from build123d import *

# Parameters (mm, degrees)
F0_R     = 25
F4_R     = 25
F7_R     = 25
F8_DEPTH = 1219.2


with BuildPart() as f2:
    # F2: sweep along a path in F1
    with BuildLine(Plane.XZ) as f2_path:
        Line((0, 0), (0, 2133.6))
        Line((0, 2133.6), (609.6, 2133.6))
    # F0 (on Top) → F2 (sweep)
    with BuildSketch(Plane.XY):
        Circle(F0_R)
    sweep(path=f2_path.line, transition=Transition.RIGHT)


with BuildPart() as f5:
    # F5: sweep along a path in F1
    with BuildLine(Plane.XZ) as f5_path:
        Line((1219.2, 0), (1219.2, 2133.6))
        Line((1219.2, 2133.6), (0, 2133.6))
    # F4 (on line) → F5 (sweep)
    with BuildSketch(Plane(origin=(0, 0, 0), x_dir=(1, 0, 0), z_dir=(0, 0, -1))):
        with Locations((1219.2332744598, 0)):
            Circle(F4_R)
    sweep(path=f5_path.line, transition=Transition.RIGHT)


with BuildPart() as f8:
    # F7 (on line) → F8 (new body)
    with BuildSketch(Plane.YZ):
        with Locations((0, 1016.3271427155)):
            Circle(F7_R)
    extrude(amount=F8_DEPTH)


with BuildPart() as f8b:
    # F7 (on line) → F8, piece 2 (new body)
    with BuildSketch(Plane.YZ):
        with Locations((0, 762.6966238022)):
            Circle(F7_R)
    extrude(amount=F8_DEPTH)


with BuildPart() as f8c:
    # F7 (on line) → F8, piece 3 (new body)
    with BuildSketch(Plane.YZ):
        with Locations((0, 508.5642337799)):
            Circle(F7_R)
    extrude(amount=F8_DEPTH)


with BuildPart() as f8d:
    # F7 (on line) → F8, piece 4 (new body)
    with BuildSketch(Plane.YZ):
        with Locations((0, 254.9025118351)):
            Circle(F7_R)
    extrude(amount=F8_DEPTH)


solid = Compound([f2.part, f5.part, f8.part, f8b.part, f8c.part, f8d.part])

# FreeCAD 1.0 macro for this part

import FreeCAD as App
import Part
import Sketcher
Q = App.Units.Quantity

doc = App.newDocument("Part")
params = doc.addObject("Spreadsheet::Sheet", "Params")
for row, (alias, value) in enumerate([
    ("sketch2_width", "24 in"),
    ("sketch2_height", "84 in"),
    ("sketch4_width", "48 in"),
    ("sketch4_height", "84 in"),
    ("pad1_length", "48 in"),
    ("pad2_length", "48 in"),
    ("pad3_length", "48 in"),
    ("pad4_length", "48 in"),
], start=1):
    params.set(f"A{row}", alias)
    params.set(f"B{row}", "=" + value)
    params.setAlias(f"B{row}", alias)

body = doc.addObject("PartDesign::Body", "Body")

# Sketch on XY plane
sketch1 = body.newObject("Sketcher::SketchObject", "Sketch")
sketch1.AttachmentSupport = (doc.getObject("XY_Plane"), [""])
sketch1.MapMode = "FlatFace"
sketch1.addGeometry(Part.Circle(App.Vector(0, 0, 0), App.Vector(0, 0, 1), 25), False)
sketch1.addConstraint(Sketcher.Constraint("Coincident", 0, 3, -1, 1))
sketch1.addConstraint(Sketcher.Constraint("Diameter", 0, Q("50 mm")))

# Sketch on XZ plane
sketch2 = body.newObject("Sketcher::SketchObject", "Sketch001")
sketch2.AttachmentSupport = (doc.getObject("XZ_Plane"), [""])
sketch2.MapMode = "FlatFace"
sketch2.addGeometry(Part.LineSegment(App.Vector(0, 0, 0), App.Vector(0, 2134, 0)), False)
sketch2.addGeometry(Part.LineSegment(App.Vector(0, 2134, 0), App.Vector(610, 2134, 0)), False)
sketch2.addConstraint(Sketcher.Constraint("Coincident", 0, 2, 1, 1))
sketch2.addConstraint(Sketcher.Constraint("Vertical", 0))
sketch2.addConstraint(Sketcher.Constraint("Horizontal", 1))
sketch2.addConstraint(Sketcher.Constraint("Coincident", 0, 1, -1, 1))
sketch2.addConstraint(Sketcher.Constraint("DistanceX", 1, 1, 1, 2, Q("24 in")))
sketch2.addConstraint(Sketcher.Constraint("DistanceY", 0, 1, 0, 2, Q("84 in")))
sketch2.setExpression("Constraints[4]", "Params.sketch2_width")
sketch2.setExpression("Constraints[5]", "Params.sketch2_height")
doc.recompute()

additivepipe = body.newObject("PartDesign::AdditivePipe", "AdditivePipe")
additivepipe.Profile = sketch1
additivepipe.Spine = (sketch2, ["Edge1", "Edge2"])
additivepipe.Transition = "Right corner"
body2 = doc.addObject("PartDesign::Body", "Body001")

# Sketch on XY plane
sketch3 = body2.newObject("Sketcher::SketchObject", "Sketch002")
sketch3.AttachmentSupport = (doc.getObject("XY_Plane001"), [""])
sketch3.MapMode = "FlatFace"
sketch3.addGeometry(Part.Circle(App.Vector(1219, 0, 0), App.Vector(0, 0, 1), 25), False)
sketch3.addConstraint(Sketcher.Constraint("PointOnObject", 0, 3, -1))
sketch3.addConstraint(Sketcher.Constraint("Diameter", 0, Q("50 mm")))
sketch3.addConstraint(Sketcher.Constraint("DistanceX", -1, 1, 0, 3, Q("1219.233274 mm")))

# Sketch on XZ plane
sketch4 = body2.newObject("Sketcher::SketchObject", "Sketch003")
sketch4.AttachmentSupport = (doc.getObject("XZ_Plane001"), [""])
sketch4.MapMode = "FlatFace"
sketch4.addGeometry(Part.LineSegment(App.Vector(1219, 0, 0), App.Vector(1219, 2134, 0)), False)
sketch4.addGeometry(Part.LineSegment(App.Vector(1219, 2134, 0), App.Vector(0, 2134, 0)), False)
sketch4.addConstraint(Sketcher.Constraint("Coincident", 0, 2, 1, 1))
sketch4.addConstraint(Sketcher.Constraint("Vertical", 0))
sketch4.addConstraint(Sketcher.Constraint("Horizontal", 1))
sketch4.addConstraint(Sketcher.Constraint("PointOnObject", 0, 1, -1))
sketch4.addConstraint(Sketcher.Constraint("PointOnObject", 1, 2, -2))
sketch4.addConstraint(Sketcher.Constraint("DistanceX", 1, 2, 1, 1, Q("48 in")))
sketch4.addConstraint(Sketcher.Constraint("DistanceY", 0, 1, 0, 2, Q("84 in")))
sketch4.setExpression("Constraints[5]", "Params.sketch4_width")
sketch4.setExpression("Constraints[6]", "Params.sketch4_height")
doc.recompute()

additivepipe2 = body2.newObject("PartDesign::AdditivePipe", "AdditivePipe001")
additivepipe2.Profile = sketch3
additivepipe2.Spine = (sketch4, ["Edge1", "Edge2"])
additivepipe2.Transition = "Right corner"
body3 = doc.addObject("PartDesign::Body", "Body002")

# Sketch on YZ plane
sketch5 = body3.newObject("Sketcher::SketchObject", "Sketch004")
sketch5.AttachmentSupport = (doc.getObject("YZ_Plane002"), [""])
sketch5.MapMode = "FlatFace"
sketch5.addGeometry(Part.Circle(App.Vector(0, 1016, 0), App.Vector(0, 0, 1), 25), False)
sketch5.addConstraint(Sketcher.Constraint("PointOnObject", 0, 3, -2))
sketch5.addConstraint(Sketcher.Constraint("Diameter", 0, Q("50 mm")))
sketch5.addConstraint(Sketcher.Constraint("DistanceY", -1, 1, 0, 3, Q("1016.327143 mm")))
pad1 = body3.newObject("PartDesign::Pad", "Pad")
pad1.Profile = sketch5
pad1.setExpression("Length", "Params.pad1_length")
body4 = doc.addObject("PartDesign::Body", "Body003")

# Sketch on YZ plane
sketch6 = body4.newObject("Sketcher::SketchObject", "Sketch005")
sketch6.AttachmentSupport = (doc.getObject("YZ_Plane003"), [""])
sketch6.MapMode = "FlatFace"
sketch6.addGeometry(Part.Circle(App.Vector(0, 763, 0), App.Vector(0, 0, 1), 25), False)
sketch6.addConstraint(Sketcher.Constraint("PointOnObject", 0, 3, -2))
sketch6.addConstraint(Sketcher.Constraint("Diameter", 0, Q("50 mm")))
sketch6.addConstraint(Sketcher.Constraint("DistanceY", -1, 1, 0, 3, Q("762.696624 mm")))
pad2 = body4.newObject("PartDesign::Pad", "Pad001")
pad2.Profile = sketch6
pad2.setExpression("Length", "Params.pad2_length")
body5 = doc.addObject("PartDesign::Body", "Body004")

# Sketch on YZ plane
sketch7 = body5.newObject("Sketcher::SketchObject", "Sketch006")
sketch7.AttachmentSupport = (doc.getObject("YZ_Plane004"), [""])
sketch7.MapMode = "FlatFace"
sketch7.addGeometry(Part.Circle(App.Vector(0, 509, 0), App.Vector(0, 0, 1), 25), False)
sketch7.addConstraint(Sketcher.Constraint("PointOnObject", 0, 3, -2))
sketch7.addConstraint(Sketcher.Constraint("Diameter", 0, Q("50 mm")))
sketch7.addConstraint(Sketcher.Constraint("DistanceY", -1, 1, 0, 3, Q("508.564234 mm")))
pad3 = body5.newObject("PartDesign::Pad", "Pad002")
pad3.Profile = sketch7
pad3.setExpression("Length", "Params.pad3_length")
body6 = doc.addObject("PartDesign::Body", "Body005")

# Sketch on YZ plane
sketch8 = body6.newObject("Sketcher::SketchObject", "Sketch007")
sketch8.AttachmentSupport = (doc.getObject("YZ_Plane005"), [""])
sketch8.MapMode = "FlatFace"
sketch8.addGeometry(Part.Circle(App.Vector(0, 255, 0), App.Vector(0, 0, 1), 25), False)
sketch8.addConstraint(Sketcher.Constraint("PointOnObject", 0, 3, -2))
sketch8.addConstraint(Sketcher.Constraint("Diameter", 0, Q("50 mm")))
sketch8.addConstraint(Sketcher.Constraint("DistanceY", -1, 1, 0, 3, Q("254.902512 mm")))
pad4 = body6.newObject("PartDesign::Pad", "Pad003")
pad4.Profile = sketch8
pad4.setExpression("Length", "Params.pad4_length")

doc.recompute()
